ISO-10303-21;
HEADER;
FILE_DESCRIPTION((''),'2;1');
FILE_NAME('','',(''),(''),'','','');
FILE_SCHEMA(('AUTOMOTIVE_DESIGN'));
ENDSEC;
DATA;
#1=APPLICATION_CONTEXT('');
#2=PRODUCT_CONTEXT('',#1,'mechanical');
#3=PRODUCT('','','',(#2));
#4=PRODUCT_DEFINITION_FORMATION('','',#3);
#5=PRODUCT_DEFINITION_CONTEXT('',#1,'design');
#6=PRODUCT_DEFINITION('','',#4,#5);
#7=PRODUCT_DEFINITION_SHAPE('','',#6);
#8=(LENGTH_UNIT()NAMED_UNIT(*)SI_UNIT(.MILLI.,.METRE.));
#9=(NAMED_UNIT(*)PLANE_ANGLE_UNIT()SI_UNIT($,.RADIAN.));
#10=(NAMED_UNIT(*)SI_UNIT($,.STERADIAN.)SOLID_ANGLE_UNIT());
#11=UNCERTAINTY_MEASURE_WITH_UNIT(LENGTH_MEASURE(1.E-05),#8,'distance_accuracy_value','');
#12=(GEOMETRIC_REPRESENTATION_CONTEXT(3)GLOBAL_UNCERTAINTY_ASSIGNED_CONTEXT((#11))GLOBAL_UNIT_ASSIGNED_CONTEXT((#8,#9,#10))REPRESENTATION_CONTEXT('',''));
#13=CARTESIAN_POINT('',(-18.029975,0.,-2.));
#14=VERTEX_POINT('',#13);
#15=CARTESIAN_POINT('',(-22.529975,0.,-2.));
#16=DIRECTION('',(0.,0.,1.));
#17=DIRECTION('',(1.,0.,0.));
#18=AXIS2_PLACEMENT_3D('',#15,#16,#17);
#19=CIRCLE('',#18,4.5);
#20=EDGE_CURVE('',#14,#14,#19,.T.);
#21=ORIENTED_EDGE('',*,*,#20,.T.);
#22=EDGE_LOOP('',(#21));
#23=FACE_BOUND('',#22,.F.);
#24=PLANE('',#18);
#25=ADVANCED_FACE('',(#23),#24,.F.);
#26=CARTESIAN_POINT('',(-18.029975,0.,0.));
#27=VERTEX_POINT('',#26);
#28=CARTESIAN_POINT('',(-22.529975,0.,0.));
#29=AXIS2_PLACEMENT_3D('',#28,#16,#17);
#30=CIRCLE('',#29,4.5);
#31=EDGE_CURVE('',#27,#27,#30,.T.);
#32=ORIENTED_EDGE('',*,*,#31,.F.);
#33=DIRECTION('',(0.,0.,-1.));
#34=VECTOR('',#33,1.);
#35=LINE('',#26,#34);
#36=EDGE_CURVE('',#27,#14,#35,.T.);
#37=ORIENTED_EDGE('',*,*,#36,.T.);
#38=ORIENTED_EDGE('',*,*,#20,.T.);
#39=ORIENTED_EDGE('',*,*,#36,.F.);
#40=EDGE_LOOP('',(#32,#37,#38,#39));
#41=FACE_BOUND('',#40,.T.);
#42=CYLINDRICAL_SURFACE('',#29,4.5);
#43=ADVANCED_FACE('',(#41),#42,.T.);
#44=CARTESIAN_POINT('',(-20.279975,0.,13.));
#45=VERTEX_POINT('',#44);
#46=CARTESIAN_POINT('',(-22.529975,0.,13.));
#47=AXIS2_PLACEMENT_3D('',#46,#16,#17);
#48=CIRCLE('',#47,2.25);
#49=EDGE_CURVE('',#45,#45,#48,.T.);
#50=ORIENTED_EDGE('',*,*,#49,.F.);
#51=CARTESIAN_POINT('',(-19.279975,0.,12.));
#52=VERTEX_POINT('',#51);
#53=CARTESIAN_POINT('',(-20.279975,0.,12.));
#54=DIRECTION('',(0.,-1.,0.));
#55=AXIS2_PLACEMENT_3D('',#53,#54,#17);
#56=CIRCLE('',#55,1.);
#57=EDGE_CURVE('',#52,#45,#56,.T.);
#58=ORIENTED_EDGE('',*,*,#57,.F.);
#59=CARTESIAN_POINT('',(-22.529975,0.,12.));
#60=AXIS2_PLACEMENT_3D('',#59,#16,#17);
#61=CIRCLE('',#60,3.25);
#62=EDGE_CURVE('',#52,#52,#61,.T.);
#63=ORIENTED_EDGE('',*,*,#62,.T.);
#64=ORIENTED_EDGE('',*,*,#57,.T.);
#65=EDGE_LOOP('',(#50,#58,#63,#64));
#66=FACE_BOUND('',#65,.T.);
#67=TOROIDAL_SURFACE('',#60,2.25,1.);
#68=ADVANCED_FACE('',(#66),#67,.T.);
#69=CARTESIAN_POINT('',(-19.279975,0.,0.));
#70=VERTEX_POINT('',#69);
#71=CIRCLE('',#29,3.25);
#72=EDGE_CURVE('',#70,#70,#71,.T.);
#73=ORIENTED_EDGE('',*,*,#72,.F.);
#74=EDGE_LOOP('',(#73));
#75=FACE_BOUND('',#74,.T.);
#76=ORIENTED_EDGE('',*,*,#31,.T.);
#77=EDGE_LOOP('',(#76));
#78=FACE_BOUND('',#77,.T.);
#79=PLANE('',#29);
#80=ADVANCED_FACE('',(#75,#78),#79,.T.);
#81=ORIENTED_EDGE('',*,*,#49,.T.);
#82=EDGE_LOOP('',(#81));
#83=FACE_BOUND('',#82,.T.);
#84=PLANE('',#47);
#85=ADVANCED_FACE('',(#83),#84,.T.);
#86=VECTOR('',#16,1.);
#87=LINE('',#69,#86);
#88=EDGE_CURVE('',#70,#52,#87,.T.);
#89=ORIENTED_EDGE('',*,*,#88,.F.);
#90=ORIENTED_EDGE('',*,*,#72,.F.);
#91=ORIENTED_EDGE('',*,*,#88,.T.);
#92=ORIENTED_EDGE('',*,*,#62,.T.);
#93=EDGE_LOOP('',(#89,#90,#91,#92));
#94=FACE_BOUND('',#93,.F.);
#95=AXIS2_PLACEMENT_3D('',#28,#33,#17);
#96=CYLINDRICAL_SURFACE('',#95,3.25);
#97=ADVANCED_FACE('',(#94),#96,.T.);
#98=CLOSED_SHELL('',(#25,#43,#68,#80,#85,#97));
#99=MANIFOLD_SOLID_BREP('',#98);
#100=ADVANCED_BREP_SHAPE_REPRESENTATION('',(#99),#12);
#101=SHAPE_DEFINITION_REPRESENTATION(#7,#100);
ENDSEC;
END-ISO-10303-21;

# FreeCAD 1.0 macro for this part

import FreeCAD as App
import Part
import Sketcher
from FreeCAD import Vector
Q = App.Units.Quantity


def edges_at(feature, points):
    """Names of the edges that pass closest to the given points."""
    edges = feature.Shape.Edges
    near = lambda p: min(range(len(edges)), key=lambda i: edges[i].distToShape(Part.Vertex(*p))[0])
    return sorted({f"Edge{near(p) + 1}" for p in points})

doc = App.newDocument("Part")
body = doc.addObject("PartDesign::Body", "Body")

# Sketch on XY plane
sketch1 = body.newObject("Sketcher::SketchObject", "Sketch")
sketch1.AttachmentSupport = (doc.getObject("XY_Plane"), [""])
sketch1.MapMode = "FlatFace"
sketch1.addGeometry(Part.Circle(Vector(-22.5, 0, 0), Vector(0, 0, 1), 3.2), False)
sketch1.addConstraint(Sketcher.Constraint("PointOnObject", 0, 3, -1))
sketch1.addConstraint(Sketcher.Constraint("Diameter", 0, Q("6.5 mm")))
sketch1.addConstraint(Sketcher.Constraint("DistanceX", 0, 3, -1, 1, Q("22.529975 mm")))
pad1 = body.newObject("PartDesign::Pad", "Pad")
pad1.Profile = sketch1
pad1.Length = 13

# Sketch on XY plane
sketch2 = body.newObject("Sketcher::SketchObject", "Sketch001")
sketch2.AttachmentSupport = (doc.getObject("XY_Plane"), [""])
sketch2.MapMode = "FlatFace"
sketch2.addGeometry(Part.Circle(Vector(-22.5, 0, 0), Vector(0, 0, 1), 4.5), False)
sketch2.addConstraint(Sketcher.Constraint("PointOnObject", 0, 3, -1))
sketch2.addConstraint(Sketcher.Constraint("Diameter", 0, Q("9 mm")))
sketch2.addConstraint(Sketcher.Constraint("DistanceX", 0, 3, -1, 1, Q("22.529975 mm")))
pad2 = body.newObject("PartDesign::Pad", "Pad001")
pad2.Profile = sketch2
pad2.Length = 2
pad2.Reversed = True
doc.recompute()

fillet = body.newObject("PartDesign::Fillet", "Fillet")
fillet.Base = (pad2, edges_at(pad2, [(-25.78, 0, 13)]))
fillet.Radius = 1

doc.recompute()
